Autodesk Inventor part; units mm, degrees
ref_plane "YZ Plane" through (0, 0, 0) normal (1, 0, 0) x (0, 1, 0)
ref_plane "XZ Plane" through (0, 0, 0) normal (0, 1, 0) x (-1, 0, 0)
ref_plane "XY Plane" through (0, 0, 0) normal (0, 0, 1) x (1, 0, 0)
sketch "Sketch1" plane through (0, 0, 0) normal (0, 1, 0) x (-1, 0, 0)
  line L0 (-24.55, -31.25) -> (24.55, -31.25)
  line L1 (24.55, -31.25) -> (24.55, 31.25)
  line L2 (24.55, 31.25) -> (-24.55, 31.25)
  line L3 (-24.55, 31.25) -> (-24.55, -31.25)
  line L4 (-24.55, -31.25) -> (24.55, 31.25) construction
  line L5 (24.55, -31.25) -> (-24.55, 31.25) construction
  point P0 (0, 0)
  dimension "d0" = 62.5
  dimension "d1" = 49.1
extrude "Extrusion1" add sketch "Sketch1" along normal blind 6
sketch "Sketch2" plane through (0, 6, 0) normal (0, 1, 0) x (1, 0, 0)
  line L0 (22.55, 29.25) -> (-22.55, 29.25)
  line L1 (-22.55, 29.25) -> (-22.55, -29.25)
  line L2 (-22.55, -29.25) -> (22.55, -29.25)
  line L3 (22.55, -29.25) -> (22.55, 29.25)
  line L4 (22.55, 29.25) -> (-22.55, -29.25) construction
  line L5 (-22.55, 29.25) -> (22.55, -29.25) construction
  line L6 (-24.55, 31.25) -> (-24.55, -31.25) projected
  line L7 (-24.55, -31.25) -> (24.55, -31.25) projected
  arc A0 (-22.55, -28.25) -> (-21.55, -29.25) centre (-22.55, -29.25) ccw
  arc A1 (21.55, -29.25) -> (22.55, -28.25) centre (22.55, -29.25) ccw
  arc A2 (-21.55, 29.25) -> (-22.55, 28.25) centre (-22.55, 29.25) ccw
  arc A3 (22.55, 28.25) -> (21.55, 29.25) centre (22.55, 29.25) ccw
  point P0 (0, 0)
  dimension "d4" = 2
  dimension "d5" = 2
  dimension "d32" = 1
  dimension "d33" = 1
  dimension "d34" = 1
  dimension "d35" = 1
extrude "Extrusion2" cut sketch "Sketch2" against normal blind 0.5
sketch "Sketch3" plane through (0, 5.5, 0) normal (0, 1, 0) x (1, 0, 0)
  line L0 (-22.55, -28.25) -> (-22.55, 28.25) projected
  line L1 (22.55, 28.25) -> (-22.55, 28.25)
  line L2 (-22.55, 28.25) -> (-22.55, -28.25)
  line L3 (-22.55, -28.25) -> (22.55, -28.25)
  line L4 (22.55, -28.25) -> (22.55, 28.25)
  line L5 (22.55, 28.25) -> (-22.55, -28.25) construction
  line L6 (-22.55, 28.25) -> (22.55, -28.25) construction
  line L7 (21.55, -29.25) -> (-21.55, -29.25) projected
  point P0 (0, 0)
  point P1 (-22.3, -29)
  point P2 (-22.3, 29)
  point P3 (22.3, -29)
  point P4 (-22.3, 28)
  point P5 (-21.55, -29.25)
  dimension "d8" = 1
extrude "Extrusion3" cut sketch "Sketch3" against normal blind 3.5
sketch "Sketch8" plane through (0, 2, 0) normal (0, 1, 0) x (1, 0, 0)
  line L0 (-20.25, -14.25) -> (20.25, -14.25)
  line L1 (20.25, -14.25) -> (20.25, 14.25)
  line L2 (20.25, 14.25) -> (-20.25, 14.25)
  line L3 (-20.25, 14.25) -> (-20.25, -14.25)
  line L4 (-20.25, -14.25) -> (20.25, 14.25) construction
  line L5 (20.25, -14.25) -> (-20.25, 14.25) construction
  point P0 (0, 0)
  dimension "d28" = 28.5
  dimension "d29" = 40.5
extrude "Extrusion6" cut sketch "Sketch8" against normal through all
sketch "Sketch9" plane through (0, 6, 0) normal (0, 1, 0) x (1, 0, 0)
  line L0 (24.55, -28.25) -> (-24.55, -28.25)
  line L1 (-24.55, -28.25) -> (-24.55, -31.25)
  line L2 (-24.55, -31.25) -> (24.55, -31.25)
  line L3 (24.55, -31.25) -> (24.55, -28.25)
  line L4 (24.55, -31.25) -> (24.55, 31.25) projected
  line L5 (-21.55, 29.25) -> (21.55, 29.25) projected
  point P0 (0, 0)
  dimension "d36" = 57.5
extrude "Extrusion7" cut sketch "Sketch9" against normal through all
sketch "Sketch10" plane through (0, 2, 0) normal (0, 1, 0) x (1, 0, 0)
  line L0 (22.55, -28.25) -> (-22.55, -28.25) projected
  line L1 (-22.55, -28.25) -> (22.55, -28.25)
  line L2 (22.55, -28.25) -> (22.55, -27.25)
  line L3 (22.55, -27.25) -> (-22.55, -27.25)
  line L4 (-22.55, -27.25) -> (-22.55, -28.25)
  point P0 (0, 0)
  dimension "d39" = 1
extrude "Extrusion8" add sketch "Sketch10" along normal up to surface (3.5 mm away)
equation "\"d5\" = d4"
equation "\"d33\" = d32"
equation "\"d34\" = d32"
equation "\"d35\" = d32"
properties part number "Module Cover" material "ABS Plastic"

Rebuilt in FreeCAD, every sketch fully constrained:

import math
import FreeCAD as App
import Part
import Sketcher

V = App.Vector
Q = App.Units.Quantity


def add_polygon(sketch, points):
    """Adds a closed chain of lines whose ends are joined by coincident constraints."""
    first, n = sketch.GeometryCount, len(points)
    for a, b in zip(points, points[1:] + points[:1]):
        sketch.addGeometry(Part.LineSegment(App.Vector(*a, 0), App.Vector(*b, 0)), False)
    for i in range(n):
        sketch.addConstraint(Sketcher.Constraint("Coincident", first + i, 2, first + (i + 1) % n, 1))

doc = App.newDocument("Part")
body = doc.addObject("PartDesign::Body", "Body")

# Sketch on XZ plane
sketch1 = doc.addObject("Sketcher::SketchObject", "Sketch")
body.addObject(sketch1)
sketch1.AttachmentSupport = (doc.XZ_Plane, [""])
sketch1.MapMode = "FlatFace"
add_polygon(sketch1, [(25, 31), (25, -31), (-25, -31), (-25, 31)])  # lines 0-3
sketch1.addConstraint([
    Sketcher.Constraint("Vertical", 0),
    Sketcher.Constraint("Horizontal", 1),
    Sketcher.Constraint("Vertical", 2),
    Sketcher.Constraint("Horizontal", 3),
    Sketcher.Constraint("Symmetric", 0, 2, 2, 2, -1, 1),
    Sketcher.Constraint("DistanceX", 1, 2, 1, 1, Q("49.1 mm")),
    Sketcher.Constraint("DistanceY", 0, 2, 0, 1, Q("62.5 mm")),
])
pad1 = doc.addObject("PartDesign::Pad", "Pad")
body.addObject(pad1)
pad1.Profile = sketch1
pad1.Length = 6
pad1.Reversed = True

# Sketch on XZ plane
sketch2 = doc.addObject("Sketcher::SketchObject", "Sketch001")
body.addObject(sketch2)
sketch2.AttachmentSupport = (doc.XZ_Plane, [""])
sketch2.MapMode = "FlatFace"
sketch2.AttachmentOffset = App.Placement(V(0, 0, -6), App.Rotation())
sketch2.addGeometry([
    Part.LineSegment(V(22.6, 28.2, 0), V(22.6, -28.2, 0)),  # 0
    Part.ArcOfCircle(Part.Circle(V(22.6, -29.2, 0), V(0, 0, 1), 1), math.radians(180), math.radians(450)),  # 1
    Part.LineSegment(V(21.6, -29.2, 0), V(-21.6, -29.2, 0)),  # 2
    Part.ArcOfCircle(Part.Circle(V(-22.6, -29.2, 0), V(0, 0, 1), 1), math.radians(90), math.radians(360)),  # 3
    Part.LineSegment(V(-22.6, -28.2, 0), V(-22.6, 28.2, 0)),  # 4
    Part.ArcOfCircle(Part.Circle(V(-22.6, 29.2, 0), V(0, 0, 1), 1), math.radians(0), math.radians(270)),  # 5
    Part.LineSegment(V(-21.6, 29.2, 0), V(21.6, 29.2, 0)),  # 6
    Part.ArcOfCircle(Part.Circle(V(22.6, 29.2, 0), V(0, 0, 1), 1), math.radians(-90), math.radians(180)),  # 7
], False)
sketch2.addConstraint([
    Sketcher.Constraint("Coincident", 0, 2, 1, 2),
    Sketcher.Constraint("Coincident", 1, 1, 2, 1),
    Sketcher.Constraint("Coincident", 2, 2, 3, 2),
    Sketcher.Constraint("Coincident", 3, 1, 4, 1),
    Sketcher.Constraint("Coincident", 4, 2, 5, 2),
    Sketcher.Constraint("Coincident", 5, 1, 6, 1),
    Sketcher.Constraint("Coincident", 6, 2, 7, 2),
    Sketcher.Constraint("Coincident", 7, 1, 0, 1),
    Sketcher.Constraint("Vertical", 0),
    Sketcher.Constraint("Horizontal", 2),
    Sketcher.Constraint("Vertical", 4),
    Sketcher.Constraint("Horizontal", 6),
    Sketcher.Constraint("Equal", 1, 3),
    Sketcher.Constraint("Equal", 3, 5),
    Sketcher.Constraint("Equal", 5, 7),
    Sketcher.Constraint("Symmetric", 1, 3, 5, 3, -1, 1),
    Sketcher.Constraint("Symmetric", 3, 3, 7, 3, -1, 1),
    Sketcher.Constraint("Symmetric", 1, 3, 3, 3, -2),
    Sketcher.Constraint("Horizontal", 3, 3, 1, 1),
    Sketcher.Constraint("Horizontal", 7, 3, 5, 1),
    Sketcher.Constraint("Vertical", 7, 3, 0, 2),
    Sketcher.Constraint("Vertical", 5, 3, 3, 1),
    Sketcher.Constraint("Radius", 1, Q("1 mm")),
    Sketcher.Constraint("DistanceX", 2, 2, 2, 1, Q("43.1 mm")),
    Sketcher.Constraint("DistanceY", 0, 2, 0, 1, Q("56.5 mm")),
])
pocket1 = doc.addObject("PartDesign::Pocket", "Pocket")
body.addObject(pocket1)
pocket1.Profile = sketch2
pocket1.Length = 0.5
pocket1.Reversed = True

# Sketch on XZ plane
sketch3 = doc.addObject("Sketcher::SketchObject", "Sketch002")
body.addObject(sketch3)
sketch3.AttachmentSupport = (doc.XZ_Plane, [""])
sketch3.MapMode = "FlatFace"
sketch3.AttachmentOffset = App.Placement(V(0, 0, -5.5), App.Rotation())
add_polygon(sketch3, [(-23, -28), (-23, 28), (23, 28), (23, -28)])  # lines 0-3
sketch3.addConstraint([
    Sketcher.Constraint("Vertical", 0),
    Sketcher.Constraint("Horizontal", 1),
    Sketcher.Constraint("Vertical", 2),
    Sketcher.Constraint("Horizontal", 3),
    Sketcher.Constraint("Symmetric", 0, 2, 2, 2, -1, 1),
    Sketcher.Constraint("DistanceX", 1, 1, 1, 2, Q("45.1 mm")),
    Sketcher.Constraint("DistanceY", 0, 1, 0, 2, Q("56.5 mm")),
])
pocket2 = doc.addObject("PartDesign::Pocket", "Pocket001")
body.addObject(pocket2)
pocket2.Profile = sketch3
pocket2.Length = 3.5
pocket2.Reversed = True

# Sketch on XZ plane
sketch4 = doc.addObject("Sketcher::SketchObject", "Sketch003")
body.addObject(sketch4)
sketch4.AttachmentSupport = (doc.XZ_Plane, [""])
sketch4.MapMode = "FlatFace"
sketch4.AttachmentOffset = App.Placement(V(0, 0, -2), App.Rotation())
add_polygon(sketch4, [(-20, -14), (-20, 14), (20, 14), (20, -14)])  # lines 0-3
sketch4.addConstraint([
    Sketcher.Constraint("Vertical", 0),
    Sketcher.Constraint("Horizontal", 1),
    Sketcher.Constraint("Vertical", 2),
    Sketcher.Constraint("Horizontal", 3),
    Sketcher.Constraint("Symmetric", 0, 2, 2, 2, -1, 1),
    Sketcher.Constraint("DistanceX", 1, 1, 1, 2, Q("40.5 mm")),
    Sketcher.Constraint("DistanceY", 0, 1, 0, 2, Q("28.5 mm")),
])
pocket3 = doc.addObject("PartDesign::Pocket", "Pocket002")
body.addObject(pocket3)
pocket3.Profile = sketch4
pocket3.Type = "ThroughAll"
pocket3.Reversed = True

# Sketch on XZ plane
sketch5 = doc.addObject("Sketcher::SketchObject", "Sketch004")
body.addObject(sketch5)
sketch5.AttachmentSupport = (doc.XZ_Plane, [""])
sketch5.MapMode = "FlatFace"
sketch5.AttachmentOffset = App.Placement(V(0, 0, -6), App.Rotation())
add_polygon(sketch5, [(24.6, 31.2), (24.6, 28.2), (-24.6, 28.2), (-24.6, 31.2)])  # lines 0-3
sketch5.addConstraint([
    Sketcher.Constraint("Vertical", 0),
    Sketcher.Constraint("Horizontal", 1),
    Sketcher.Constraint("Vertical", 2),
    Sketcher.Constraint("Horizontal", 3),
    Sketcher.Constraint("DistanceY", 0, 2, 0, 1, Q("3 mm")),
    Sketcher.Constraint("DistanceX", 1, 2, 1, 1, Q("49.1 mm")),
    Sketcher.Constraint("DistanceX", -1, 1, 0, 2, Q("24.55 mm")),
    Sketcher.Constraint("DistanceY", -1, 1, 0, 2, Q("28.25 mm")),
])
pocket4 = doc.addObject("PartDesign::Pocket", "Pocket003")
body.addObject(pocket4)
pocket4.Profile = sketch5
pocket4.Type = "ThroughAll"
pocket4.Reversed = True

# Sketch on XZ plane
sketch6 = doc.addObject("Sketcher::SketchObject", "Sketch005")
body.addObject(sketch6)
sketch6.AttachmentSupport = (doc.XZ_Plane, [""])
sketch6.MapMode = "FlatFace"
sketch6.AttachmentOffset = App.Placement(V(0, 0, -2), App.Rotation())
add_polygon(sketch6, [(-22.6, 28.2), (22.6, 28.2), (22.6, 27.2), (-22.6, 27.2)])  # lines 0-3
sketch6.addConstraint([
    Sketcher.Constraint("Horizontal", 0),
    Sketcher.Constraint("Vertical", 1),
    Sketcher.Constraint("Horizontal", 2),
    Sketcher.Constraint("Vertical", 3),
    Sketcher.Constraint("DistanceY", 1, 2, 1, 1, Q("1 mm")),
    Sketcher.Constraint("DistanceX", 0, 1, 0, 2, Q("45.1 mm")),
    Sketcher.Constraint("DistanceX", -1, 1, 0, 2, Q("22.55 mm")),
    Sketcher.Constraint("DistanceY", -1, 1, 0, 2, Q("28.25 mm")),
])
pad2 = doc.addObject("PartDesign::Pad", "Pad001")
body.addObject(pad2)
pad2.Profile = sketch6
pad2.Length = 3.5
pad2.Reversed = True

doc.recompute()
